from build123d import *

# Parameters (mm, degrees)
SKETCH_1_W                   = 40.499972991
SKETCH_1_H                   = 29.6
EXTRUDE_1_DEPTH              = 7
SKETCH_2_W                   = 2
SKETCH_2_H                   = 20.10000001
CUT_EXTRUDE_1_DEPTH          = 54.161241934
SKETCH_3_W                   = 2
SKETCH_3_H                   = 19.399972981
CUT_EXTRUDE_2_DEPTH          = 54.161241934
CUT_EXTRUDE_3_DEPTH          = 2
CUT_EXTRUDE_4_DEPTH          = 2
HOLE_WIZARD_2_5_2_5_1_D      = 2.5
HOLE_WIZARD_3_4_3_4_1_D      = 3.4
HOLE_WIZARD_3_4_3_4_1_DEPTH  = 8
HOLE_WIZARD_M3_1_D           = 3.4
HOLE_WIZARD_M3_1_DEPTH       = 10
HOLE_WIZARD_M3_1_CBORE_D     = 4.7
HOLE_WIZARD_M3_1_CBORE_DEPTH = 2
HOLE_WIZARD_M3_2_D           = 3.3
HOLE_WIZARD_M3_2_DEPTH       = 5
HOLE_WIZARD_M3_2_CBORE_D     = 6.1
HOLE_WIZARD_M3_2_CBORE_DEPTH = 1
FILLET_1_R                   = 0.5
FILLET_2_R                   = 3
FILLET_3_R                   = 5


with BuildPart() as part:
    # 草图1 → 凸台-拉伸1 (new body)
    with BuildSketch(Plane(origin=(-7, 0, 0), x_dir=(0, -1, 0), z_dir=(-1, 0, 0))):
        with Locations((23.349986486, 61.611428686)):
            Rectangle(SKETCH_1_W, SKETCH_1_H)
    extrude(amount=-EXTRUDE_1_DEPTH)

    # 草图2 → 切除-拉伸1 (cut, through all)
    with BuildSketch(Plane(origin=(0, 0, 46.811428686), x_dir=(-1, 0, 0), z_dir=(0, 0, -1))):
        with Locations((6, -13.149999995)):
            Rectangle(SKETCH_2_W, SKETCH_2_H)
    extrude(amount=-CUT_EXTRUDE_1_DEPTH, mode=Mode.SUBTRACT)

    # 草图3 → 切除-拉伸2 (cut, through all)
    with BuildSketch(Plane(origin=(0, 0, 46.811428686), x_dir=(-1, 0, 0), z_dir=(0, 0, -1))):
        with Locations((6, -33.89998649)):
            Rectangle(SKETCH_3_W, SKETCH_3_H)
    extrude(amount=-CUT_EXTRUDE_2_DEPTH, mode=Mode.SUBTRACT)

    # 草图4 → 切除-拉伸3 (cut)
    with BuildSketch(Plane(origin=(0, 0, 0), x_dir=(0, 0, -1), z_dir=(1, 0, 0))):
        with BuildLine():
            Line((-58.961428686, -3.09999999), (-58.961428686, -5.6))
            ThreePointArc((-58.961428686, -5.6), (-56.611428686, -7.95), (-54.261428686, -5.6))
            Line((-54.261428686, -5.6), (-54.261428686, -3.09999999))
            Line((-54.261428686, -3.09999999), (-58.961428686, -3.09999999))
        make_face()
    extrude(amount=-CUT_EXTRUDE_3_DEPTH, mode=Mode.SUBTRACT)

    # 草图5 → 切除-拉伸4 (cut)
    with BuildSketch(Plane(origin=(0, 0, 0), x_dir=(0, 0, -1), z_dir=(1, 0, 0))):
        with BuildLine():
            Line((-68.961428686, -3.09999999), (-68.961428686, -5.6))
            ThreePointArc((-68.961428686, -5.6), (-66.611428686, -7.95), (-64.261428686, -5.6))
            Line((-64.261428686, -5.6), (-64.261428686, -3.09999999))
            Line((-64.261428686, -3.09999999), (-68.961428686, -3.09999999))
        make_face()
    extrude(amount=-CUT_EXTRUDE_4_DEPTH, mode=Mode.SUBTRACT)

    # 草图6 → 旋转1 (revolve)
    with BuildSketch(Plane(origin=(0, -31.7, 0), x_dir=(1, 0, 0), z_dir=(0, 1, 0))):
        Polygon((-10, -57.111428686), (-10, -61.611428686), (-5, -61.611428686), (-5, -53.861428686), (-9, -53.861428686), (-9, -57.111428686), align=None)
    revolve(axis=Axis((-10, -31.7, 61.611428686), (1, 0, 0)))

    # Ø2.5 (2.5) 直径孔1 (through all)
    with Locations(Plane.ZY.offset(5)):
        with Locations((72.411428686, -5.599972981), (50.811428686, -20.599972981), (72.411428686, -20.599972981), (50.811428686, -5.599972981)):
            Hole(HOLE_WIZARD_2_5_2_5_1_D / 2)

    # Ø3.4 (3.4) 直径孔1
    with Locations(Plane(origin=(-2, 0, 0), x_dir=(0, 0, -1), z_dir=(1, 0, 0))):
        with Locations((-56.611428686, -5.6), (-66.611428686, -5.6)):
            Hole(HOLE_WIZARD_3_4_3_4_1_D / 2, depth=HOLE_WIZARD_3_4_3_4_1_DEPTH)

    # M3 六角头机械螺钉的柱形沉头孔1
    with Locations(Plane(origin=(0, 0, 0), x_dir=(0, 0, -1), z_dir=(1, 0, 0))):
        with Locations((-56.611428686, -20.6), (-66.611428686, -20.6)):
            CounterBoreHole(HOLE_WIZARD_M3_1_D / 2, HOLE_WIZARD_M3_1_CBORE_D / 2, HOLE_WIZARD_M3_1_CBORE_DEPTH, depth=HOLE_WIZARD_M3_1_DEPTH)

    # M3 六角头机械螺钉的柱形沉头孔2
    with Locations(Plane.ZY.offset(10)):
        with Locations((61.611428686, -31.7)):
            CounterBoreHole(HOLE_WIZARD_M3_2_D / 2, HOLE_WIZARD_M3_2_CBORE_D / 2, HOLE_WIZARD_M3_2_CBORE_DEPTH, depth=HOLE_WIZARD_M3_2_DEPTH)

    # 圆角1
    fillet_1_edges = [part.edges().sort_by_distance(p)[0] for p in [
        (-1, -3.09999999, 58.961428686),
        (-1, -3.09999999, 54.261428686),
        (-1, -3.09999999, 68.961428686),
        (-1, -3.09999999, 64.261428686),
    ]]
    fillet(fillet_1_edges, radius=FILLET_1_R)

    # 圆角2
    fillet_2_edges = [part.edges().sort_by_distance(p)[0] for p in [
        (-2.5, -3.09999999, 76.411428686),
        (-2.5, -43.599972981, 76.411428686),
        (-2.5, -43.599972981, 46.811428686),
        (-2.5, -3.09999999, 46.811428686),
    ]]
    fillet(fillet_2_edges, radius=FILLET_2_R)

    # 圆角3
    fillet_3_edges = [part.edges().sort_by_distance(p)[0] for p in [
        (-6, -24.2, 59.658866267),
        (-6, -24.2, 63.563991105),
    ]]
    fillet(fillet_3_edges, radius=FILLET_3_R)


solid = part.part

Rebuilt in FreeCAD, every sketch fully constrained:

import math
import FreeCAD as App
import Part
import Sketcher
Q = App.Units.Quantity


def edges_at(feature, points):
    """Names of the edges that pass closest to the given points."""
    edges = feature.Shape.Edges
    near = lambda p: min(range(len(edges)), key=lambda i: edges[i].distToShape(Part.Vertex(*p))[0])
    return sorted({f"Edge{near(p) + 1}" for p in points})


def add_polygon(sketch, points):
    """Adds a closed chain of lines whose ends are joined by coincident constraints."""
    first, n = sketch.GeometryCount, len(points)
    for a, b in zip(points, points[1:] + points[:1]):
        sketch.addGeometry(Part.LineSegment(App.Vector(*a, 0), App.Vector(*b, 0)), False)
    for i in range(n):
        sketch.addConstraint(Sketcher.Constraint("Coincident", first + i, 2, first + (i + 1) % n, 1))

doc = App.newDocument("Part")
body = doc.addObject("PartDesign::Body", "Body")

# Sketch on YZ plane
sketch1 = body.newObject("Sketcher::SketchObject", "Sketch")
sketch1.AttachmentSupport = (doc.getObject("YZ_Plane"), [""])
sketch1.MapMode = "FlatFace"
sketch1.AttachmentOffset = App.Placement(App.Vector(0, 0, -7), App.Rotation())
add_polygon(sketch1, [(-3, 76), (-3, 47), (-44, 47), (-44, 76)])  # lines 0-3
sketch1.addConstraint([
    Sketcher.Constraint("Vertical", 0),
    Sketcher.Constraint("Horizontal", 1),
    Sketcher.Constraint("Vertical", 2),
    Sketcher.Constraint("Horizontal", 3),
    Sketcher.Constraint("DistanceY", 0, 2, 0, 1, Q("29.6 mm")),
    Sketcher.Constraint("DistanceX", 0, 2, -1, 1, Q("3.1 mm")),
    Sketcher.Constraint("DistanceX", 1, 2, 1, 1, Q("40.499973 mm")),
    Sketcher.Constraint("DistanceY", -1, 1, 0, 2, Q("46.811429 mm")),
])
pad1 = body.newObject("PartDesign::Pad", "Pad")
pad1.Profile = sketch1
pad1.Length = 7

# Sketch on XY plane
sketch2 = body.newObject("Sketcher::SketchObject", "Sketch001")
sketch2.AttachmentSupport = (doc.getObject("XY_Plane"), [""])
sketch2.MapMode = "FlatFace"
sketch2.AttachmentOffset = App.Placement(App.Vector(0, 0, 46.811429), App.Rotation())
add_polygon(sketch2, [(-5, -3.1), (-5, -23.2), (-7, -23.2), (-7, -3.1)])  # lines 0-3
sketch2.addConstraint([
    Sketcher.Constraint("Vertical", 0),
    Sketcher.Constraint("Horizontal", 1),
    Sketcher.Constraint("Vertical", 2),
    Sketcher.Constraint("Horizontal", 3),
    Sketcher.Constraint("DistanceX", 1, 2, 1, 1, Q("2 mm")),
    Sketcher.Constraint("DistanceY", 0, 2, 0, 1, Q("20.1 mm")),
    Sketcher.Constraint("DistanceX", 0, 2, -1, 1, Q("5 mm")),
    Sketcher.Constraint("DistanceY", 0, 2, -1, 1, Q("23.2 mm")),
])
pocket1 = body.newObject("PartDesign::Pocket", "Pocket")
pocket1.Profile = sketch2
pocket1.Type = "ThroughAll"
pocket1.Reversed = True

# Sketch on XY plane
sketch3 = body.newObject("Sketcher::SketchObject", "Sketch002")
sketch3.AttachmentSupport = (doc.getObject("XY_Plane"), [""])
sketch3.MapMode = "FlatFace"
sketch3.AttachmentOffset = App.Placement(App.Vector(0, 0, 46.811429), App.Rotation())
add_polygon(sketch3, [(-5, -24.2), (-5, -43.599973), (-7, -43.599973), (-7, -24.2)])  # lines 0-3
sketch3.addConstraint([
    Sketcher.Constraint("Vertical", 0),
    Sketcher.Constraint("Horizontal", 1),
    Sketcher.Constraint("Vertical", 2),
    Sketcher.Constraint("Horizontal", 3),
    Sketcher.Constraint("DistanceX", 1, 2, 1, 1, Q("2 mm")),
    Sketcher.Constraint("DistanceX", 0, 2, -1, 1, Q("5 mm")),
    Sketcher.Constraint("DistanceY", 2, 2, -1, 1, Q("24.2 mm")),
    Sketcher.Constraint("DistanceY", 0, 2, 0, 1, Q("19.399973 mm")),
])
pocket2 = body.newObject("PartDesign::Pocket", "Pocket001")
pocket2.Profile = sketch3
pocket2.Type = "ThroughAll"
pocket2.Reversed = True

# Sketch on YZ plane
sketch4 = body.newObject("Sketcher::SketchObject", "Sketch003")
sketch4.AttachmentSupport = (doc.getObject("YZ_Plane"), [""])
sketch4.MapMode = "FlatFace"
sketch4.addGeometry([
    Part.LineSegment(App.Vector(-3.1, 59, 0), App.Vector(-5.6, 59, 0)),
    Part.ArcOfCircle(Part.Circle(App.Vector(-5.6, 56.6, 0), App.Vector(0, 0, 1), 2.4), math.radians(90), math.radians(270)),
    Part.LineSegment(App.Vector(-5.6, 54.3, 0), App.Vector(-3.1, 54.3, 0)),
    Part.LineSegment(App.Vector(-3.1, 54.3, 0), App.Vector(-3.1, 59, 0)),
], False)
sketch4.addConstraint([
    Sketcher.Constraint("Tangent", 0, 2, 1, 1),
    Sketcher.Constraint("Tangent", 1, 2, 2, 1),
    Sketcher.Constraint("Coincident", 2, 2, 3, 1),
    Sketcher.Constraint("Coincident", 3, 2, 0, 1),
    Sketcher.Constraint("Horizontal", 0),
    Sketcher.Constraint("Horizontal", 2),
    Sketcher.Constraint("Vertical", 3),
    Sketcher.Constraint("Radius", 1, Q("2.35 mm")),
    Sketcher.Constraint("DistanceX", 0, 2, 0, 1, Q("2.5 mm")),
    Sketcher.Constraint("DistanceX", 1, 3, -1, 1, Q("5.6 mm")),
    Sketcher.Constraint("DistanceY", -1, 1, 1, 3, Q("56.611429 mm")),
])
pocket3 = body.newObject("PartDesign::Pocket", "Pocket002")
pocket3.Profile = sketch4
pocket3.Length = 2

# Sketch on YZ plane
sketch5 = body.newObject("Sketcher::SketchObject", "Sketch004")
sketch5.AttachmentSupport = (doc.getObject("YZ_Plane"), [""])
sketch5.MapMode = "FlatFace"
sketch5.addGeometry([
    Part.LineSegment(App.Vector(-3.1, 69, 0), App.Vector(-5.6, 69, 0)),
    Part.ArcOfCircle(Part.Circle(App.Vector(-5.6, 66.6, 0), App.Vector(0, 0, 1), 2.4), math.radians(90), math.radians(270)),
    Part.LineSegment(App.Vector(-5.6, 64.3, 0), App.Vector(-3.1, 64.3, 0)),
    Part.LineSegment(App.Vector(-3.1, 64.3, 0), App.Vector(-3.1, 69, 0)),
], False)
sketch5.addConstraint([
    Sketcher.Constraint("Tangent", 0, 2, 1, 1),
    Sketcher.Constraint("Tangent", 1, 2, 2, 1),
    Sketcher.Constraint("Coincident", 2, 2, 3, 1),
    Sketcher.Constraint("Coincident", 3, 2, 0, 1),
    Sketcher.Constraint("Horizontal", 0),
    Sketcher.Constraint("Horizontal", 2),
    Sketcher.Constraint("Vertical", 3),
    Sketcher.Constraint("Radius", 1, Q("2.35 mm")),
    Sketcher.Constraint("DistanceX", 0, 2, 0, 1, Q("2.5 mm")),
    Sketcher.Constraint("DistanceX", 1, 3, -1, 1, Q("5.6 mm")),
    Sketcher.Constraint("DistanceY", -1, 1, 1, 3, Q("66.611429 mm")),
])
pocket4 = body.newObject("PartDesign::Pocket", "Pocket003")
pocket4.Profile = sketch5
pocket4.Length = 2

# Sketch on XZ plane
sketch6 = body.newObject("Sketcher::SketchObject", "Sketch005")
sketch6.AttachmentSupport = (doc.getObject("XZ_Plane"), [""])
sketch6.MapMode = "FlatFace"
sketch6.AttachmentOffset = App.Placement(App.Vector(0, 0, 31.7), App.Rotation())
add_polygon(sketch6, [(-10, 57.1), (-10, 61.6), (-5, 61.6), (-5, 53.9), (-9, 53.9), (-9, 57.1)])  # lines 0-5
sketch6.addGeometry(Part.LineSegment(App.Vector(-10, 61.6, 0), App.Vector(-5, 61.6, 0)), True)  # axis
sketch6.addConstraint([
    Sketcher.Constraint("Vertical", 0),
    Sketcher.Constraint("Horizontal", 1),
    Sketcher.Constraint("Vertical", 2),
    Sketcher.Constraint("Horizontal", 3),
    Sketcher.Constraint("Vertical", 4),
    Sketcher.Constraint("Horizontal", 5),
    Sketcher.Constraint("Horizontal", 6),
    Sketcher.Constraint("Coincident", 6, 1, 0, 2),
    Sketcher.Constraint("Vertical", 2, 2, 6, 2),
    Sketcher.Constraint("DistanceX", 1, 1, 1, 2, Q("5 mm")),
    Sketcher.Constraint("DistanceX", 3, 2, 3, 1, Q("4 mm")),
    Sketcher.Constraint("DistanceY", 0, 1, 0, 2, Q("4.5 mm")),
    Sketcher.Constraint("DistanceX", 0, 2, -1, 1, Q("10 mm")),
    Sketcher.Constraint("DistanceY", 2, 2, 2, 1, Q("7.75 mm")),
    Sketcher.Constraint("DistanceY", -1, 1, 0, 2, Q("61.611429 mm")),
])
revolution = body.newObject("PartDesign::Revolution", "Revolution")
revolution.Profile = sketch6
revolution.ReferenceAxis = (sketch6, ["Axis0"])
revolution.Angle = 360

# Sketch on YZ plane
sketch7 = body.newObject("Sketcher::SketchObject", "Sketch006")
sketch7.AttachmentSupport = (doc.getObject("YZ_Plane"), [""])
sketch7.MapMode = "FlatFace"
sketch7.AttachmentOffset = App.Placement(App.Vector(0, 0, -5), App.Rotation())
sketch7.addGeometry([
    Part.Circle(App.Vector(-5.6, 72.4, 0), App.Vector(0, 0, 1), 1.2),
    Part.Circle(App.Vector(-20.6, 50.8, 0), App.Vector(0, 0, 1), 1.2),
    Part.Circle(App.Vector(-20.6, 72.4, 0), App.Vector(0, 0, 1), 1.2),
    Part.Circle(App.Vector(-5.6, 50.8, 0), App.Vector(0, 0, 1), 1.2),
], False)
sketch7.addConstraint([
    Sketcher.Constraint("Equal", 0, 1),
    Sketcher.Constraint("Equal", 1, 2),
    Sketcher.Constraint("Equal", 2, 3),
    Sketcher.Constraint("Horizontal", 0, 3, 2, 3),
    Sketcher.Constraint("Horizontal", 1, 3, 3, 3),
    Sketcher.Constraint("Vertical", 1, 3, 2, 3),
    Sketcher.Constraint("Vertical", 0, 3, 3, 3),
    Sketcher.Constraint("Diameter", 0, Q("2.5 mm")),
    Sketcher.Constraint("DistanceX", 1, 3, 0, 3, Q("15 mm")),
    Sketcher.Constraint("DistanceY", 1, 3, 0, 3, Q("21.6 mm")),
    Sketcher.Constraint("DistanceY", -1, 1, 0, 3, Q("72.411429 mm")),
    Sketcher.Constraint("DistanceX", 0, 3, -1, 1, Q("5.599973 mm")),
])
doc.recompute()
hole = body.newObject("PartDesign::Hole", "Hole")
hole.Profile = sketch7
hole.ThreadType = "None"
hole.Diameter = 2.5
hole.DepthType = "ThroughAll"
hole.Reversed = True

# Sketch on YZ plane
sketch8 = body.newObject("Sketcher::SketchObject", "Sketch007")
sketch8.AttachmentSupport = (doc.getObject("YZ_Plane"), [""])
sketch8.MapMode = "FlatFace"
sketch8.AttachmentOffset = App.Placement(App.Vector(0, 0, -2), App.Rotation())
sketch8.addGeometry([
    Part.Circle(App.Vector(-5.6, 56.6, 0), App.Vector(0, 0, 1), 1.7),
    Part.Circle(App.Vector(-5.6, 66.6, 0), App.Vector(0, 0, 1), 1.7),
], False)
sketch8.addConstraint([
    Sketcher.Constraint("Equal", 0, 1),
    Sketcher.Constraint("Vertical", 0, 3, 1, 3),
    Sketcher.Constraint("Diameter", 0, Q("3.4 mm")),
    Sketcher.Constraint("DistanceY", 0, 3, 1, 3, Q("10 mm")),
    Sketcher.Constraint("DistanceX", 0, 3, -1, 1, Q("5.6 mm")),
    Sketcher.Constraint("DistanceY", -1, 1, 0, 3, Q("56.611429 mm")),
])
doc.recompute()
hole2 = body.newObject("PartDesign::Hole", "Hole001")
hole2.Profile = sketch8
hole2.ThreadType = "None"
hole2.Diameter = 3.4
hole2.DepthType = "Dimension"
hole2.Depth = 8
hole2.DrillPoint = "Flat"

# Sketch on YZ plane
sketch9 = body.newObject("Sketcher::SketchObject", "Sketch008")
sketch9.AttachmentSupport = (doc.getObject("YZ_Plane"), [""])
sketch9.MapMode = "FlatFace"
sketch9.addGeometry([
    Part.Circle(App.Vector(-20.6, 56.6, 0), App.Vector(0, 0, 1), 1.7),
    Part.Circle(App.Vector(-20.6, 66.6, 0), App.Vector(0, 0, 1), 1.7),
], False)
sketch9.addConstraint([
    Sketcher.Constraint("Equal", 0, 1),
    Sketcher.Constraint("Vertical", 0, 3, 1, 3),
    Sketcher.Constraint("Diameter", 0, Q("3.4 mm")),
    Sketcher.Constraint("DistanceY", 0, 3, 1, 3, Q("10 mm")),
    Sketcher.Constraint("DistanceX", 0, 3, -1, 1, Q("20.6 mm")),
    Sketcher.Constraint("DistanceY", -1, 1, 0, 3, Q("56.611429 mm")),
])
doc.recompute()
hole3 = body.newObject("PartDesign::Hole", "Hole002")
hole3.Profile = sketch9
hole3.ThreadType = "None"
hole3.Diameter = 3.4
hole3.DepthType = "Dimension"
hole3.Depth = 10
hole3.DrillPoint = "Flat"
hole3.HoleCutType = "Counterbore"
hole3.HoleCutDiameter = 4.7
hole3.HoleCutDepth = 2

# Sketch on YZ plane
sketch10 = body.newObject("Sketcher::SketchObject", "Sketch009")
sketch10.AttachmentSupport = (doc.getObject("YZ_Plane"), [""])
sketch10.MapMode = "FlatFace"
sketch10.AttachmentOffset = App.Placement(App.Vector(0, 0, -10), App.Rotation())
sketch10.addGeometry(Part.Circle(App.Vector(-31.7, 61.6, 0), App.Vector(0, 0, 1), 1.6), False)
sketch10.addConstraint([
    Sketcher.Constraint("Diameter", 0, Q("3.3 mm")),
    Sketcher.Constraint("DistanceX", 0, 3, -1, 1, Q("31.7 mm")),
    Sketcher.Constraint("DistanceY", -1, 1, 0, 3, Q("61.611429 mm")),
])
doc.recompute()
hole4 = body.newObject("PartDesign::Hole", "Hole003")
hole4.Profile = sketch10
hole4.ThreadType = "None"
hole4.Diameter = 3.3
hole4.DepthType = "Dimension"
hole4.Depth = 5
hole4.DrillPoint = "Flat"
hole4.HoleCutType = "Counterbore"
hole4.HoleCutDiameter = 6.1
hole4.HoleCutDepth = 1
hole4.Reversed = True
doc.recompute()

fillet = body.newObject("PartDesign::Fillet", "Fillet")
fillet.Base = (hole4, edges_at(hole4, [
    (-1, -3.1, 58.961),
    (-1, -3.1, 54.261),
    (-1, -3.1, 68.961),
    (-1, -3.1, 64.261),
]))
fillet.Radius = 0.5
doc.recompute()

fillet2 = body.newObject("PartDesign::Fillet", "Fillet001")
fillet2.Base = (fillet, edges_at(fillet, [
    (-2.5, -3.1, 76.411),
    (-2.5, -43.6, 76.411),
    (-2.5, -43.6, 46.811),
    (-2.5, -3.1, 46.811),
]))
fillet2.Radius = 3
doc.recompute()

fillet3 = body.newObject("PartDesign::Fillet", "Fillet002")
fillet3.Base = (fillet2, edges_at(fillet2, [(-6, -24.2, 59.659), (-6, -24.2, 63.564)]))
fillet3.Radius = 5

doc.recompute()
